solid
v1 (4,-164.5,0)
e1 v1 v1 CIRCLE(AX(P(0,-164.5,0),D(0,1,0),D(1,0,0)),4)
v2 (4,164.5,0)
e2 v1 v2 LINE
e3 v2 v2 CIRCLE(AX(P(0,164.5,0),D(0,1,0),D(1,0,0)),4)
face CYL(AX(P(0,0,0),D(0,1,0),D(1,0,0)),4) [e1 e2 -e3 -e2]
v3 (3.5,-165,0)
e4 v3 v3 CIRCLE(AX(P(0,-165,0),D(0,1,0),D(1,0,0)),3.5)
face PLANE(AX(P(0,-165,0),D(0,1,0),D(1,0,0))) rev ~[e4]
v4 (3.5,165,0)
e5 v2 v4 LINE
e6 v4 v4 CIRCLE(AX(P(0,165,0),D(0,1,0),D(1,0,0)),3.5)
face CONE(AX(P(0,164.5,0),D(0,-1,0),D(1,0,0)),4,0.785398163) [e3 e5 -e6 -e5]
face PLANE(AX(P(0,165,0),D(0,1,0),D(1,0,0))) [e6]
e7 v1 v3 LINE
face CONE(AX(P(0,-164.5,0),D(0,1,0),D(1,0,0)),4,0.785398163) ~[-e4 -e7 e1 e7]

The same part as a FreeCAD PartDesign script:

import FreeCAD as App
import Part
import Sketcher

V = App.Vector


def edges_at(feature, points):
    """Names of the edges that pass closest to the given points."""
    edges = feature.Shape.Edges
    near = lambda p: min(range(len(edges)), key=lambda i: edges[i].distToShape(Part.Vertex(*p))[0])
    return sorted({f"Edge{near(p) + 1}" for p in points})

doc = App.newDocument("Part")
body = doc.addObject("PartDesign::Body", "Body")

# Sketch on XZ plane
sketch1 = body.newObject("Sketcher::SketchObject", "Sketch")
sketch1.AttachmentSupport = (doc.getObject("XZ_Plane"), [""])
sketch1.MapMode = "FlatFace"
sketch1.addGeometry(Part.Circle(V(0, 0, 0), V(0, 0, 1), 4), False)
sketch1.addConstraint(Sketcher.Constraint("Coincident", 0, 3, -1, 1))
sketch1.addConstraint(Sketcher.Constraint("Diameter", 0, 8.0))
pad1 = body.newObject("PartDesign::Pad", "Pad")
pad1.Profile = sketch1
pad1.Length = 330
pad1.Midplane = True
doc.recompute()

chamfer = body.newObject("PartDesign::Chamfer", "Chamfer")
chamfer.Base = (pad1, edges_at(pad1, [(-4, -165, 0), (-4, 165, 0)]))
chamfer.Size = 0.5

doc.recompute()
